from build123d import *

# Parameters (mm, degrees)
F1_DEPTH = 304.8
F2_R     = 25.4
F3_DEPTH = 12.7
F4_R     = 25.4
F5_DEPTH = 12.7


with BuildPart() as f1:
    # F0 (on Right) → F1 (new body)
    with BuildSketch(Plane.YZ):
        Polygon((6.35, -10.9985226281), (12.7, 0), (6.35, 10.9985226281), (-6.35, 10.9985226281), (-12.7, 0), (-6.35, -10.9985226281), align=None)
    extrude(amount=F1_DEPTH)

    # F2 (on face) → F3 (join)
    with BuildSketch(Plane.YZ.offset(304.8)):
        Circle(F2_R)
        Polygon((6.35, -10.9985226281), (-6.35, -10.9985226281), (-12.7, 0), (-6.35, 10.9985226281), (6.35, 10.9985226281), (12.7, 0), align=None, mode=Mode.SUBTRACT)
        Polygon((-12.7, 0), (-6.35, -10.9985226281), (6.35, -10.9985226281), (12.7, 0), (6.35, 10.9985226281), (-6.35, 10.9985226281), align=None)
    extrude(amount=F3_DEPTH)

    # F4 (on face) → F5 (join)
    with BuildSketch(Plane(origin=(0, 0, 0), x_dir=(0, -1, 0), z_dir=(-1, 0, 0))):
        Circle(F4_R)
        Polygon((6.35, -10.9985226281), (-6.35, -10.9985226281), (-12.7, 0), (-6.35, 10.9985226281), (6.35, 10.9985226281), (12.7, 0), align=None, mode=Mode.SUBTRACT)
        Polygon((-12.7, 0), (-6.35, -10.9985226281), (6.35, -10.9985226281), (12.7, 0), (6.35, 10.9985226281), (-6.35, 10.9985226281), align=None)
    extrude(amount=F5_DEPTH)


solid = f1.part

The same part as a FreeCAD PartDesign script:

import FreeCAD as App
import Part
import Sketcher

V = App.Vector
Q = App.Units.Quantity

doc = App.newDocument("Part")
body = doc.addObject("PartDesign::Body", "Body")

# Sketch on YZ plane
sketch1 = body.newObject("Sketcher::SketchObject", "Sketch")
sketch1.AttachmentSupport = (doc.getObject("YZ_Plane"), [""])
sketch1.MapMode = "FlatFace"
sketch1.addGeometry(Part.LineSegment(V(6, -11, 0), V(13, 0, 0)), False)
sketch1.addGeometry(Part.LineSegment(V(13, 0, 0), V(6, 11, 0)), False)
sketch1.addGeometry(Part.LineSegment(V(6, 11, 0), V(-6, 11, 0)), False)
sketch1.addGeometry(Part.LineSegment(V(-6, 11, 0), V(-13, 0, 0)), False)
sketch1.addGeometry(Part.LineSegment(V(-13, 0, 0), V(-6, -11, 0)), False)
sketch1.addGeometry(Part.LineSegment(V(-6, -11, 0), V(6, -11, 0)), False)
sketch1.addConstraint(Sketcher.Constraint("Coincident", 0, 2, 1, 1))
sketch1.addConstraint(Sketcher.Constraint("Coincident", 1, 2, 2, 1))
sketch1.addConstraint(Sketcher.Constraint("Coincident", 2, 2, 3, 1))
sketch1.addConstraint(Sketcher.Constraint("Coincident", 3, 2, 4, 1))
sketch1.addConstraint(Sketcher.Constraint("Coincident", 4, 2, 5, 1))
sketch1.addConstraint(Sketcher.Constraint("Coincident", 5, 2, 0, 1))
sketch1.addConstraint(Sketcher.Constraint("Horizontal", 2))
sketch1.addConstraint(Sketcher.Constraint("Horizontal", 5))
sketch1.addConstraint(Sketcher.Constraint("Symmetric", 0, 2, 3, 2, -1, 1))
sketch1.addConstraint(Sketcher.Constraint("Symmetric", 1, 2, 4, 2, -1, 1))
sketch1.addConstraint(Sketcher.Constraint("PointOnObject", 0, 2, -1))
sketch1.addConstraint(Sketcher.Constraint("Parallel", 0, 3))
sketch1.addConstraint(Sketcher.Constraint("Vertical", 2, 2, 4, 2))
sketch1.addConstraint(Sketcher.Constraint("DistanceX", 2, 2, 2, 1, Q("0.5 in")))
sketch1.addConstraint(Sketcher.Constraint("Angle", 0, Q("60 deg")))
sketch1.addConstraint(Sketcher.Constraint("DistanceX", 3, 2, 0, 2, Q("1 in")))
pad1 = body.newObject("PartDesign::Pad", "Pad")
pad1.Profile = sketch1
pad1.Length = Q("12 in")

# Sketch on YZ plane
sketch2 = body.newObject("Sketcher::SketchObject", "Sketch001")
sketch2.AttachmentSupport = (doc.getObject("YZ_Plane"), [""])
sketch2.MapMode = "FlatFace"
sketch2.AttachmentOffset = App.Placement(V(0, 0, 12 * 25.4), App.Rotation())
sketch2.addGeometry(Part.Circle(V(0, 0, 0), V(0, 0, 1), 25), False)
sketch2.addConstraint(Sketcher.Constraint("Coincident", 0, 3, -1, 1))
sketch2.addConstraint(Sketcher.Constraint("Diameter", 0, Q("2 in")))
pad2 = body.newObject("PartDesign::Pad", "Pad001")
pad2.Profile = sketch2
pad2.Length = Q("0.5 in")

# Sketch on YZ plane
sketch3 = body.newObject("Sketcher::SketchObject", "Sketch002")
sketch3.AttachmentSupport = (doc.getObject("YZ_Plane"), [""])
sketch3.MapMode = "FlatFace"
sketch3.addGeometry(Part.Circle(V(0, 0, 0), V(0, 0, 1), 25), False)
sketch3.addConstraint(Sketcher.Constraint("Coincident", 0, 3, -1, 1))
sketch3.addConstraint(Sketcher.Constraint("Diameter", 0, Q("2 in")))
pad3 = body.newObject("PartDesign::Pad", "Pad002")
pad3.Profile = sketch3
pad3.Length = Q("0.5 in")
pad3.Reversed = True

doc.recompute()
